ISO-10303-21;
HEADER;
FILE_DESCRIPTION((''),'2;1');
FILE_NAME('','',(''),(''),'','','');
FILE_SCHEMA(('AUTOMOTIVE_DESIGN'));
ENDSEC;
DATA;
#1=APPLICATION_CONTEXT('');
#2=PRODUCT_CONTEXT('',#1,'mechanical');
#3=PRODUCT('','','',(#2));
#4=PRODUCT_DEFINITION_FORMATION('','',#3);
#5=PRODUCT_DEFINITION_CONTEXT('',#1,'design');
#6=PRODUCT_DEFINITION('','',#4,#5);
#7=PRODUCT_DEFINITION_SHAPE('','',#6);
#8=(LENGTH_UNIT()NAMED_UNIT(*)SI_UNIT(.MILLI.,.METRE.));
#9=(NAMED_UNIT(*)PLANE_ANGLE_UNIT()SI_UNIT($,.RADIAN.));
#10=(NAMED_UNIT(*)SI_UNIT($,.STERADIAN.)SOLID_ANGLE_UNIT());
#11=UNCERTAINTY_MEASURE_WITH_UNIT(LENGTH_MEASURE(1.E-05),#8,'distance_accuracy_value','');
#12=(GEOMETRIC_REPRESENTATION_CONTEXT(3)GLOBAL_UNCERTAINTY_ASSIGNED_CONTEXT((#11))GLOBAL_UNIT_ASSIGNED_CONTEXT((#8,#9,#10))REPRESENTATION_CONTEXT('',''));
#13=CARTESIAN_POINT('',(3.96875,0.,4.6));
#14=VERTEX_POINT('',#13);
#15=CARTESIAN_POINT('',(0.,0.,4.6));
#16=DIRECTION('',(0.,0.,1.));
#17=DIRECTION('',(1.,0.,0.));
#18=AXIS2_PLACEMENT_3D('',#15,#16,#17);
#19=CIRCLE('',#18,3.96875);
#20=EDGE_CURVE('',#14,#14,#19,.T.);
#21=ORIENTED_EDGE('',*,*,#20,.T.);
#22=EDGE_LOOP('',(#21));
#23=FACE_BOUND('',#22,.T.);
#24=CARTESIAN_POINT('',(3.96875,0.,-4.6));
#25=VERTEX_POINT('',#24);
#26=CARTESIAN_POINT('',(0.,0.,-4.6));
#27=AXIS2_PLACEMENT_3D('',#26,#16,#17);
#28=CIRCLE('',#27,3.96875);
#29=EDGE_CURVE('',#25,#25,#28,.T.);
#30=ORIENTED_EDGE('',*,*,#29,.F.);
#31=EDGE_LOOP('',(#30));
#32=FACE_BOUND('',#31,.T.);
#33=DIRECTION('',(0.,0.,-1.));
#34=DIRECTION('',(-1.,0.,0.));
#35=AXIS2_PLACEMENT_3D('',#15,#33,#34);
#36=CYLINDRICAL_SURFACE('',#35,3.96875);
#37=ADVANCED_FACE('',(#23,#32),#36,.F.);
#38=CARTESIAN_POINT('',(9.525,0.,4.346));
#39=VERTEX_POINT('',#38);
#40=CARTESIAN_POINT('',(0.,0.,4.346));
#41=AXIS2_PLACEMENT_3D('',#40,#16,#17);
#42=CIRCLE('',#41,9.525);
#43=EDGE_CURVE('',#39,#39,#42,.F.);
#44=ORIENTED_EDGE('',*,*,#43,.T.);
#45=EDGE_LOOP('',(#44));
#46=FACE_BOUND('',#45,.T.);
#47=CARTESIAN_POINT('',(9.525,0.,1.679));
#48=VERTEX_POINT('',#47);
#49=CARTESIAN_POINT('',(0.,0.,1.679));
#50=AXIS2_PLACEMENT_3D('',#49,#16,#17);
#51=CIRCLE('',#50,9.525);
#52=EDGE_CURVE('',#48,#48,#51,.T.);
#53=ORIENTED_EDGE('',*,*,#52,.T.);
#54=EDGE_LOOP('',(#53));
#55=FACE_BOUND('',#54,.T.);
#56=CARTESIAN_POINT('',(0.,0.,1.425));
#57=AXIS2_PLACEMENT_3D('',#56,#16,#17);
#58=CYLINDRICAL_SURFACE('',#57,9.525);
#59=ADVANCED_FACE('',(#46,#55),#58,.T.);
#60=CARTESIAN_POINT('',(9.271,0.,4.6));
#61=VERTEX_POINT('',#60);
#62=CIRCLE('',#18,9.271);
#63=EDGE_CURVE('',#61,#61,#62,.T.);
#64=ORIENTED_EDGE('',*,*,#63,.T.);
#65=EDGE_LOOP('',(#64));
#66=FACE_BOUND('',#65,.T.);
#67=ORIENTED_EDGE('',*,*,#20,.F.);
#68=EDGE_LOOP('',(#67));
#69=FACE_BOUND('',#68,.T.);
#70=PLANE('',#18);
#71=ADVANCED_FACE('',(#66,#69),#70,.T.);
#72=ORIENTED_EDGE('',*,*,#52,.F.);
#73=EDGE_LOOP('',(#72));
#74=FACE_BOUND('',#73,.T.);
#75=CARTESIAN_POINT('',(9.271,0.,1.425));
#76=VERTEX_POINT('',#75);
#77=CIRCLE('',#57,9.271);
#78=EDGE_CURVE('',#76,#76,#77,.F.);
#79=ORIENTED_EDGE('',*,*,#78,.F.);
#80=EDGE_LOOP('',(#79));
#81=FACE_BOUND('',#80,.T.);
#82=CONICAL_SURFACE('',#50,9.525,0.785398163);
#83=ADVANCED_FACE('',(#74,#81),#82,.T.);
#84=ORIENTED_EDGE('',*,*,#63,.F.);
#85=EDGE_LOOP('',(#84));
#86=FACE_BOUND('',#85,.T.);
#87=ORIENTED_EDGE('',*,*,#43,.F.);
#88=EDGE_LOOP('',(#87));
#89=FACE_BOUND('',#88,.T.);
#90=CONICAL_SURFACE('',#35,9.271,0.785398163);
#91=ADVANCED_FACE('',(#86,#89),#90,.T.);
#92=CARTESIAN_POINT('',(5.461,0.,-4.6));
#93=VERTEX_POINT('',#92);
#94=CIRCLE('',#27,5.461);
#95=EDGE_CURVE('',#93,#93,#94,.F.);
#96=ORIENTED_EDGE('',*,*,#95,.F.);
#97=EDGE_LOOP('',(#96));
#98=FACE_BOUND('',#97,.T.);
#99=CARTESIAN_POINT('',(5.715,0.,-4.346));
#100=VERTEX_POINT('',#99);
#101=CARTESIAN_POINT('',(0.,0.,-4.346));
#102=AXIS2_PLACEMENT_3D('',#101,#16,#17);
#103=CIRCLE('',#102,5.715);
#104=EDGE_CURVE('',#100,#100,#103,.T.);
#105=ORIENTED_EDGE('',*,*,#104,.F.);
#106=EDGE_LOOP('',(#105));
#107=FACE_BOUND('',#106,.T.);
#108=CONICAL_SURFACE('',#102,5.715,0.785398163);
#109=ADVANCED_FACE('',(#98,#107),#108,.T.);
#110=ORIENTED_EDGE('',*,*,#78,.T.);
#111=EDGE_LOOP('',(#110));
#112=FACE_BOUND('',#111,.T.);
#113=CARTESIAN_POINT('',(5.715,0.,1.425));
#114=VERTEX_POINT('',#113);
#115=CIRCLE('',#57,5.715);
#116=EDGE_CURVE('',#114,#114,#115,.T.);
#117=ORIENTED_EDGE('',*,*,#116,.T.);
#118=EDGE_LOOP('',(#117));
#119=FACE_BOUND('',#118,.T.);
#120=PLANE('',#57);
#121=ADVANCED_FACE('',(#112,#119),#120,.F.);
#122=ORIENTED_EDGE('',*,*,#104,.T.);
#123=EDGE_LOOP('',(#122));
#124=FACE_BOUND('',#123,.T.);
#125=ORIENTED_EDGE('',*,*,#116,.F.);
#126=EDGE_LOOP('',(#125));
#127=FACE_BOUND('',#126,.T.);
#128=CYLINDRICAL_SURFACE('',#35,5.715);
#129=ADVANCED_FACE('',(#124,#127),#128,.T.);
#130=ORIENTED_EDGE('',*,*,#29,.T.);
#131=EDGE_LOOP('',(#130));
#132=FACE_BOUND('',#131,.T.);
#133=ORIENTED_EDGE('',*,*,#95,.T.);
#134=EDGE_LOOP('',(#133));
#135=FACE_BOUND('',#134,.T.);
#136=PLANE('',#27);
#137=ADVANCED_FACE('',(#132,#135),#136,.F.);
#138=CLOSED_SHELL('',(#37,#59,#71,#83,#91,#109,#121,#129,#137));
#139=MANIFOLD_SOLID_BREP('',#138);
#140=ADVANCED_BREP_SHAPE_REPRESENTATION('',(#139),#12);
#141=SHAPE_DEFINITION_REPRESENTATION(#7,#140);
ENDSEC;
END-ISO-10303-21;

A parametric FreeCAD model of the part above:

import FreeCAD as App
import Part
import Sketcher

V = App.Vector
Q = App.Units.Quantity


def edges_at(feature, points):
    """Names of the edges that pass closest to the given points."""
    edges = feature.Shape.Edges
    near = lambda p: min(range(len(edges)), key=lambda i: edges[i].distToShape(Part.Vertex(*p))[0])
    return sorted({f"Edge{near(p) + 1}" for p in points})

doc = App.newDocument("Part")
body = doc.addObject("PartDesign::Body", "Body")

# Sketch on XY plane
sketch1 = body.newObject("Sketcher::SketchObject", "Sketch")
sketch1.AttachmentSupport = (doc.getObject("XY_Plane"), [""])
sketch1.MapMode = "FlatFace"
sketch1.addGeometry([
    Part.Circle(V(0, 0, 0), V(0, 0, 1), 5.7),
    Part.Circle(V(0, 0, 0), V(0, 0, 1), 4),
], False)
sketch1.addConstraint([
    Sketcher.Constraint("Coincident", 0, 3, -1, 1),
    Sketcher.Constraint("Coincident", 1, 3, -1, 1),
    Sketcher.Constraint("Diameter", 0, Q("0.45 in")),
    Sketcher.Constraint("Diameter", 1, Q("0.3125 in")),
])
pad1 = body.newObject("PartDesign::Pad", "Pad")
pad1.Profile = sketch1
pad1.Length = 9.2
pad1.Midplane = True

# Sketch on XY plane
sketch2 = body.newObject("Sketcher::SketchObject", "Sketch001")
sketch2.AttachmentSupport = (doc.getObject("XY_Plane"), [""])
sketch2.MapMode = "FlatFace"
sketch2.AttachmentOffset = App.Placement(V(0, 0, 4.6), App.Rotation())
sketch2.addGeometry([
    Part.Circle(V(0, 0, 0), V(0, 0, 1), 10),
    Part.Circle(V(0, 0, 0), V(0, 0, 1), 6),
], False)
sketch2.addConstraint([
    Sketcher.Constraint("Coincident", 0, 3, -1, 1),
    Sketcher.Constraint("Coincident", 1, 3, -1, 1),
    Sketcher.Constraint("Diameter", 0, Q("0.75 in")),
    Sketcher.Constraint("Diameter", 1, Q("0.45 in")),
])
pad2 = body.newObject("PartDesign::Pad", "Pad001")
pad2.Profile = sketch2
pad2.Length = Q("0.125 in")
pad2.Reversed = True
doc.recompute()

chamfer = body.newObject("PartDesign::Chamfer", "Chamfer")
chamfer.Base = (pad2, edges_at(pad2, [(-9.525, 0, 1.425), (-9.525, 0, 4.6), (-5.715, 0, -4.6)]))
chamfer.Size = Q("0.01 in")

doc.recompute()
